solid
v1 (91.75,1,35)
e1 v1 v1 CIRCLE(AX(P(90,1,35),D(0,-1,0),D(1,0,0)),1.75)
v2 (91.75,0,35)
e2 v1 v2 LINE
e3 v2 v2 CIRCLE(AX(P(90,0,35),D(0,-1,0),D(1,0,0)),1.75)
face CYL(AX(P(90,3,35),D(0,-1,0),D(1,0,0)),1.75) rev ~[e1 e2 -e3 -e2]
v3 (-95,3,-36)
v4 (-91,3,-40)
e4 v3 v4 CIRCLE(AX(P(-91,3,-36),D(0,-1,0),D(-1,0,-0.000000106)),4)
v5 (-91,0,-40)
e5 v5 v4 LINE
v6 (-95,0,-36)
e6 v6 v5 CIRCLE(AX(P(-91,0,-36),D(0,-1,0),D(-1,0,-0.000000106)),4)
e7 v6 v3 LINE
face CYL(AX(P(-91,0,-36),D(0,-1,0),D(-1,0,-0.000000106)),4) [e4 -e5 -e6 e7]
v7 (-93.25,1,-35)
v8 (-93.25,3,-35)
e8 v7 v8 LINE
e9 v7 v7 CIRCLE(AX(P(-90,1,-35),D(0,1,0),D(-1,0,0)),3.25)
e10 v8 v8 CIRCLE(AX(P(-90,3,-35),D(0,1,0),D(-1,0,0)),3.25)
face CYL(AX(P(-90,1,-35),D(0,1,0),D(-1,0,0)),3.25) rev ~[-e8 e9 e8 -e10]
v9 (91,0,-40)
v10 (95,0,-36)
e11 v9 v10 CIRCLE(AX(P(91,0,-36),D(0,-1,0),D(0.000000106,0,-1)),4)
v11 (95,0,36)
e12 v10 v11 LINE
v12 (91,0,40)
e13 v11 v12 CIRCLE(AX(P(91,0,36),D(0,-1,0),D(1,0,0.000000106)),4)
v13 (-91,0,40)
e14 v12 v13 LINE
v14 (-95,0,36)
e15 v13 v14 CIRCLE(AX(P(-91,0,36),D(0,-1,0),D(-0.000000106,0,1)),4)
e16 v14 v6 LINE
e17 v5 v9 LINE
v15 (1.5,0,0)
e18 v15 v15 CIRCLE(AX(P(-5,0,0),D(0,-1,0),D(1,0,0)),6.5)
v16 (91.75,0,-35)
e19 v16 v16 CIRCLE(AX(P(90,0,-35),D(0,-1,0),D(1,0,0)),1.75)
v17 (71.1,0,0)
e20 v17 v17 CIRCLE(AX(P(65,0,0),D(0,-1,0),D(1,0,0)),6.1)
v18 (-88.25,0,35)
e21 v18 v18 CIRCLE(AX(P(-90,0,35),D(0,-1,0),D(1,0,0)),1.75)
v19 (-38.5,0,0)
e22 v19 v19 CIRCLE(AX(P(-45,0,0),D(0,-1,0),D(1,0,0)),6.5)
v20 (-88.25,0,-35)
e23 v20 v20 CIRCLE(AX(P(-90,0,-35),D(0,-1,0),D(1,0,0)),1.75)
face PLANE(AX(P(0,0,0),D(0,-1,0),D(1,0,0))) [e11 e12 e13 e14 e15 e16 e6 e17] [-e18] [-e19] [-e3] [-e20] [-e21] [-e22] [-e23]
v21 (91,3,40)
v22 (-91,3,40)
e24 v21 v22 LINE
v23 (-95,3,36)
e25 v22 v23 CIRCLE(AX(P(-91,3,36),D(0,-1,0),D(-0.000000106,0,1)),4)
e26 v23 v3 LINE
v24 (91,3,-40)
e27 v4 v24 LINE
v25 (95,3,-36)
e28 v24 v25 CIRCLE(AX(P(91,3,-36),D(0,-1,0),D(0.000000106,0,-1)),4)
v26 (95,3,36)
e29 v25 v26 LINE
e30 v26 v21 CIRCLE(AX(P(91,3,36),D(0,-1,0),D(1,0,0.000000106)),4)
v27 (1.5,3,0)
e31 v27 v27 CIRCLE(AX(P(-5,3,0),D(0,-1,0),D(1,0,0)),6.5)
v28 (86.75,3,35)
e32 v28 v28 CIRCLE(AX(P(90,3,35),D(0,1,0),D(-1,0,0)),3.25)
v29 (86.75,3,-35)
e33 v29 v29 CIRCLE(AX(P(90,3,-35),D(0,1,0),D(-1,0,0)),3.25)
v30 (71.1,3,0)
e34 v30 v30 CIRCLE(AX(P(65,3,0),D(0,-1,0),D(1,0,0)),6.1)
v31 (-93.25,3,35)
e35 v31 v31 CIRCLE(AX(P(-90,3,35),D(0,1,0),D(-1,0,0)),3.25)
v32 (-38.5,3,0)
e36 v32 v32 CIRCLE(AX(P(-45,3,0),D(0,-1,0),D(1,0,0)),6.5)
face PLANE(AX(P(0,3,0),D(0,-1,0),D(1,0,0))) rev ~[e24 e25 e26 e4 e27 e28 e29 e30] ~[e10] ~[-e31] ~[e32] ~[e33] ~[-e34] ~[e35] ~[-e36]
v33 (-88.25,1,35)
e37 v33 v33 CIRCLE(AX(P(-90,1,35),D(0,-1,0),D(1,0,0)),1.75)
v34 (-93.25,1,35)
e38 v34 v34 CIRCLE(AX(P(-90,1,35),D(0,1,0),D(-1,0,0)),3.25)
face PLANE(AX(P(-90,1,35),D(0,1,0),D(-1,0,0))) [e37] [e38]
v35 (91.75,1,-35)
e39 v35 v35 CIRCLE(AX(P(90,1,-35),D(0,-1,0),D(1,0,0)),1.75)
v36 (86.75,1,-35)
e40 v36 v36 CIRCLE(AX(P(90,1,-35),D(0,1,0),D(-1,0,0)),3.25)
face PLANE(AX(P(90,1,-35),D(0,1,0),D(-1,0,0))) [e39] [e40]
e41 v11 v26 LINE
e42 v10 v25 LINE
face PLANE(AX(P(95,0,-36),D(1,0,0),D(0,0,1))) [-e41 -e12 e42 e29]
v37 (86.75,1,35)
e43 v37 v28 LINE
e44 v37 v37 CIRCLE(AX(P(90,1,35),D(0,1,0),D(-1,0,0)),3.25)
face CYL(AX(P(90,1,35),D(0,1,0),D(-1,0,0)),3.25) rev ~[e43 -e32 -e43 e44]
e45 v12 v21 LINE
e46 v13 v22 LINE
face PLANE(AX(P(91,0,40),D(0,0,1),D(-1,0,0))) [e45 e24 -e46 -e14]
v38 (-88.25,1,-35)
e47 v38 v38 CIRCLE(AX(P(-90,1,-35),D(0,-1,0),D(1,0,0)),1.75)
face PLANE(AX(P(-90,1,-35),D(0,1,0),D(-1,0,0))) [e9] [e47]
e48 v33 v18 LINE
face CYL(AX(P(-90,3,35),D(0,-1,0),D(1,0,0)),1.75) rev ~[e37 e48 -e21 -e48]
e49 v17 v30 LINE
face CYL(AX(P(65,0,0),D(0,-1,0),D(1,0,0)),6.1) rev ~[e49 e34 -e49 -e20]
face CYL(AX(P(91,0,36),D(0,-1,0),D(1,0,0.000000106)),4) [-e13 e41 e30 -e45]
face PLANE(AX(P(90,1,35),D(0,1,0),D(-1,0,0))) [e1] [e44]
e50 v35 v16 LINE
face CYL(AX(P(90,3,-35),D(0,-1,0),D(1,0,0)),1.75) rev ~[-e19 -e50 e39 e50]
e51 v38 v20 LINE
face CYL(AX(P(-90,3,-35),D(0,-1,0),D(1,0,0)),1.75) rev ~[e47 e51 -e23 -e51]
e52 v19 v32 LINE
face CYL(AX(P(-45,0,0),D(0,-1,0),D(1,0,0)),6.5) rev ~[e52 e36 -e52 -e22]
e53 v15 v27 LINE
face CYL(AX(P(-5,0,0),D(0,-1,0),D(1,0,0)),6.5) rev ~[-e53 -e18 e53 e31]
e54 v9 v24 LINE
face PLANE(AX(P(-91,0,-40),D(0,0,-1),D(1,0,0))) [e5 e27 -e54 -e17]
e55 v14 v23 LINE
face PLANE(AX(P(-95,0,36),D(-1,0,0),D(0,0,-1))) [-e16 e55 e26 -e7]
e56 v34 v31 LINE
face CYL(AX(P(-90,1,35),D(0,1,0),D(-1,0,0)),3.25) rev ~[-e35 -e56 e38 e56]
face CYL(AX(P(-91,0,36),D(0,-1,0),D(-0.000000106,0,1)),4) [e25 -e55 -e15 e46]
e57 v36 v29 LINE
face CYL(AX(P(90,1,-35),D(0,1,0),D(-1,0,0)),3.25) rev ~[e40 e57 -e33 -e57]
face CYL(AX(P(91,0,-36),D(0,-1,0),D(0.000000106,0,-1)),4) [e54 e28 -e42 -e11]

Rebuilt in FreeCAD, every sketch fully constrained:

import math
import FreeCAD as App
import Part
import Sketcher
Q = App.Units.Quantity

doc = App.newDocument("Part")
body = doc.addObject("PartDesign::Body", "Body")

# Sketch on XZ plane
sketch1 = body.newObject("Sketcher::SketchObject", "Sketch")
sketch1.AttachmentSupport = (doc.getObject("XZ_Plane"), [""])
sketch1.MapMode = "FlatFace"
sketch1.addGeometry(Part.LineSegment(App.Vector(-91, -40, 0), App.Vector(91, -40, 0)), False)
sketch1.addGeometry(Part.ArcOfCircle(Part.Circle(App.Vector(91, -36, 0), App.Vector(0, 0, 1), 4), math.radians(-90), math.radians(0)), False)
sketch1.addGeometry(Part.LineSegment(App.Vector(95, -36, 0), App.Vector(95, 36, 0)), False)
sketch1.addGeometry(Part.ArcOfCircle(Part.Circle(App.Vector(91, 36, 0), App.Vector(0, 0, 1), 4), math.radians(0), math.radians(90)), False)
sketch1.addGeometry(Part.LineSegment(App.Vector(91, 40, 0), App.Vector(-91, 40, 0)), False)
sketch1.addGeometry(Part.ArcOfCircle(Part.Circle(App.Vector(-91, 36, 0), App.Vector(0, 0, 1), 4), math.radians(90), math.radians(180)), False)
sketch1.addGeometry(Part.LineSegment(App.Vector(-95, 36, 0), App.Vector(-95, -36, 0)), False)
sketch1.addGeometry(Part.ArcOfCircle(Part.Circle(App.Vector(-91, -36, 0), App.Vector(0, 0, 1), 4), math.radians(-180), math.radians(-90)), False)
sketch1.addGeometry(Part.Circle(App.Vector(-45, 0, 0), App.Vector(0, 0, 1), 6.5), False)
sketch1.addGeometry(Part.Circle(App.Vector(-5, 0, 0), App.Vector(0, 0, 1), 6.5), False)
sketch1.addGeometry(Part.Circle(App.Vector(65, 0, 0), App.Vector(0, 0, 1), 6.1), False)
sketch1.addConstraint(Sketcher.Constraint("Tangent", 0, 2, 1, 1))
sketch1.addConstraint(Sketcher.Constraint("Tangent", 1, 2, 2, 1))
sketch1.addConstraint(Sketcher.Constraint("Tangent", 2, 2, 3, 1))
sketch1.addConstraint(Sketcher.Constraint("Tangent", 3, 2, 4, 1))
sketch1.addConstraint(Sketcher.Constraint("Tangent", 4, 2, 5, 1))
sketch1.addConstraint(Sketcher.Constraint("Tangent", 5, 2, 6, 1))
sketch1.addConstraint(Sketcher.Constraint("Tangent", 6, 2, 7, 1))
sketch1.addConstraint(Sketcher.Constraint("Tangent", 7, 2, 0, 1))
sketch1.addConstraint(Sketcher.Constraint("Horizontal", 0))
sketch1.addConstraint(Sketcher.Constraint("Vertical", 2))
sketch1.addConstraint(Sketcher.Constraint("Horizontal", 4))
sketch1.addConstraint(Sketcher.Constraint("Vertical", 6))
sketch1.addConstraint(Sketcher.Constraint("Equal", 1, 3))
sketch1.addConstraint(Sketcher.Constraint("Equal", 3, 5))
sketch1.addConstraint(Sketcher.Constraint("Equal", 5, 7))
sketch1.addConstraint(Sketcher.Constraint("Equal", 8, 9))
sketch1.addConstraint(Sketcher.Constraint("Symmetric", 1, 3, 5, 3, -1, 1))
sketch1.addConstraint(Sketcher.Constraint("PointOnObject", 8, 3, -1))
sketch1.addConstraint(Sketcher.Constraint("PointOnObject", 9, 3, -1))
sketch1.addConstraint(Sketcher.Constraint("PointOnObject", 10, 3, -1))
sketch1.addConstraint(Sketcher.Constraint("Diameter", 8, Q("13 mm")))
sketch1.addConstraint(Sketcher.Constraint("Radius", 1, Q("4 mm")))
sketch1.addConstraint(Sketcher.Constraint("Diameter", 10, Q("12.2 mm")))
sketch1.addConstraint(Sketcher.Constraint("DistanceX", 0, 1, 0, 2, Q("182 mm")))
sketch1.addConstraint(Sketcher.Constraint("DistanceY", 2, 1, 2, 2, Q("72 mm")))
sketch1.addConstraint(Sketcher.Constraint("DistanceX", 8, 3, -1, 1, Q("45 mm")))
sketch1.addConstraint(Sketcher.Constraint("DistanceX", 9, 3, -1, 1, Q("5 mm")))
sketch1.addConstraint(Sketcher.Constraint("DistanceX", -1, 1, 10, 3, Q("65 mm")))
pad1 = body.newObject("PartDesign::Pad", "Pad")
pad1.Profile = sketch1
pad1.Length = 3
pad1.Reversed = True

# Sketch on XZ plane
sketch2 = body.newObject("Sketcher::SketchObject", "Sketch001")
sketch2.AttachmentSupport = (doc.getObject("XZ_Plane"), [""])
sketch2.MapMode = "FlatFace"
sketch2.AttachmentOffset = App.Placement(App.Vector(0, 0, -3), App.Rotation())
sketch2.addGeometry(Part.Circle(App.Vector(90, 35, 0), App.Vector(0, 0, 1), 1.8), False)
sketch2.addGeometry(Part.Circle(App.Vector(-90, 35, 0), App.Vector(0, 0, 1), 1.8), False)
sketch2.addGeometry(Part.Circle(App.Vector(-90, -35, 0), App.Vector(0, 0, 1), 1.8), False)
sketch2.addGeometry(Part.Circle(App.Vector(90, -35, 0), App.Vector(0, 0, 1), 1.8), False)
sketch2.addConstraint(Sketcher.Constraint("Equal", 0, 1))
sketch2.addConstraint(Sketcher.Constraint("Equal", 1, 2))
sketch2.addConstraint(Sketcher.Constraint("Equal", 2, 3))
sketch2.addConstraint(Sketcher.Constraint("Symmetric", 0, 3, 2, 3, -1, 1))
sketch2.addConstraint(Sketcher.Constraint("Symmetric", 1, 3, 3, 3, -1, 1))
sketch2.addConstraint(Sketcher.Constraint("Symmetric", 0, 3, 1, 3, -2))
sketch2.addConstraint(Sketcher.Constraint("Diameter", 0, Q("3.5 mm")))
sketch2.addConstraint(Sketcher.Constraint("DistanceX", -1, 1, 0, 3, Q("90 mm")))
sketch2.addConstraint(Sketcher.Constraint("DistanceY", -1, 1, 0, 3, Q("35 mm")))
doc.recompute()
hole = body.newObject("PartDesign::Hole", "Hole")
hole.Profile = sketch2
hole.ThreadType = "None"
hole.Diameter = 3.5
hole.DepthType = "ThroughAll"
hole.HoleCutType = "Counterbore"
hole.HoleCutDiameter = 6.5
hole.HoleCutDepth = 2
hole.Reversed = True

doc.recompute()
